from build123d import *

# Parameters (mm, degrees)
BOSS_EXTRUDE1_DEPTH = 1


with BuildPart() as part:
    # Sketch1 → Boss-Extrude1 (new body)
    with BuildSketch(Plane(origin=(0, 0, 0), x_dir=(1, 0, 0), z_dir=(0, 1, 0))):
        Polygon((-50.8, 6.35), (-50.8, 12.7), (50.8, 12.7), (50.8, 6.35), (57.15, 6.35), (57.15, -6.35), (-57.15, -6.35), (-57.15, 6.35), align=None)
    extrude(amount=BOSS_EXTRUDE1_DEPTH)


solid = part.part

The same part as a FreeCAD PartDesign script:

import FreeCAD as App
import Part
import Sketcher
from FreeCAD import Vector
Q = App.Units.Quantity

doc = App.newDocument("Part")
body = doc.addObject("PartDesign::Body", "Body")

# Sketch on XZ plane
sketch1 = body.newObject("Sketcher::SketchObject", "Sketch")
sketch1.AttachmentSupport = (doc.getObject("XZ_Plane"), [""])
sketch1.MapMode = "FlatFace"
sketch1.addGeometry([
    Part.LineSegment(Vector(-51, -13, 0), Vector(-51, -6, 0)),  # 0
    Part.LineSegment(Vector(-51, -6, 0), Vector(-57, -6, 0)),  # 1
    Part.LineSegment(Vector(-57, -6, 0), Vector(-57, 6, 0)),  # 2
    Part.LineSegment(Vector(-57, 6, 0), Vector(57, 6, 0)),  # 3
    Part.LineSegment(Vector(57, 6, 0), Vector(57, -6, 0)),  # 4
    Part.LineSegment(Vector(57, -6, 0), Vector(51, -6, 0)),  # 5
    Part.LineSegment(Vector(51, -6, 0), Vector(51, -13, 0)),  # 6
    Part.LineSegment(Vector(51, -13, 0), Vector(-51, -13, 0)),  # 7
], False)
sketch1.addConstraint([
    Sketcher.Constraint("Coincident", 0, 2, 1, 1),
    Sketcher.Constraint("Coincident", 1, 2, 2, 1),
    Sketcher.Constraint("Coincident", 2, 2, 3, 1),
    Sketcher.Constraint("Coincident", 3, 2, 4, 1),
    Sketcher.Constraint("Coincident", 4, 2, 5, 1),
    Sketcher.Constraint("Coincident", 5, 2, 6, 1),
    Sketcher.Constraint("Coincident", 6, 2, 7, 1),
    Sketcher.Constraint("Coincident", 7, 2, 0, 1),
    Sketcher.Constraint("Vertical", 0),
    Sketcher.Constraint("Horizontal", 1),
    Sketcher.Constraint("Vertical", 2),
    Sketcher.Constraint("Horizontal", 3),
    Sketcher.Constraint("Vertical", 4),
    Sketcher.Constraint("Horizontal", 5),
    Sketcher.Constraint("Vertical", 6),
    Sketcher.Constraint("Horizontal", 7),
    Sketcher.Constraint("Symmetric", 1, 2, 3, 2, -1, 1),
    Sketcher.Constraint("Symmetric", 0, 2, 5, 2, -2),
    Sketcher.Constraint("Equal", 5, 0),
    Sketcher.Constraint("DistanceX", 7, 2, 7, 1, Q("4 in")),
    Sketcher.Constraint("DistanceX", 3, 1, 3, 2, Q("4.5 in")),
    Sketcher.Constraint("DistanceY", 2, 1, 2, 2, Q("0.5 in")),
])
pad1 = body.newObject("PartDesign::Pad", "Pad")
pad1.Profile = sketch1
pad1.Length = 1
pad1.Reversed = True

doc.recompute()
